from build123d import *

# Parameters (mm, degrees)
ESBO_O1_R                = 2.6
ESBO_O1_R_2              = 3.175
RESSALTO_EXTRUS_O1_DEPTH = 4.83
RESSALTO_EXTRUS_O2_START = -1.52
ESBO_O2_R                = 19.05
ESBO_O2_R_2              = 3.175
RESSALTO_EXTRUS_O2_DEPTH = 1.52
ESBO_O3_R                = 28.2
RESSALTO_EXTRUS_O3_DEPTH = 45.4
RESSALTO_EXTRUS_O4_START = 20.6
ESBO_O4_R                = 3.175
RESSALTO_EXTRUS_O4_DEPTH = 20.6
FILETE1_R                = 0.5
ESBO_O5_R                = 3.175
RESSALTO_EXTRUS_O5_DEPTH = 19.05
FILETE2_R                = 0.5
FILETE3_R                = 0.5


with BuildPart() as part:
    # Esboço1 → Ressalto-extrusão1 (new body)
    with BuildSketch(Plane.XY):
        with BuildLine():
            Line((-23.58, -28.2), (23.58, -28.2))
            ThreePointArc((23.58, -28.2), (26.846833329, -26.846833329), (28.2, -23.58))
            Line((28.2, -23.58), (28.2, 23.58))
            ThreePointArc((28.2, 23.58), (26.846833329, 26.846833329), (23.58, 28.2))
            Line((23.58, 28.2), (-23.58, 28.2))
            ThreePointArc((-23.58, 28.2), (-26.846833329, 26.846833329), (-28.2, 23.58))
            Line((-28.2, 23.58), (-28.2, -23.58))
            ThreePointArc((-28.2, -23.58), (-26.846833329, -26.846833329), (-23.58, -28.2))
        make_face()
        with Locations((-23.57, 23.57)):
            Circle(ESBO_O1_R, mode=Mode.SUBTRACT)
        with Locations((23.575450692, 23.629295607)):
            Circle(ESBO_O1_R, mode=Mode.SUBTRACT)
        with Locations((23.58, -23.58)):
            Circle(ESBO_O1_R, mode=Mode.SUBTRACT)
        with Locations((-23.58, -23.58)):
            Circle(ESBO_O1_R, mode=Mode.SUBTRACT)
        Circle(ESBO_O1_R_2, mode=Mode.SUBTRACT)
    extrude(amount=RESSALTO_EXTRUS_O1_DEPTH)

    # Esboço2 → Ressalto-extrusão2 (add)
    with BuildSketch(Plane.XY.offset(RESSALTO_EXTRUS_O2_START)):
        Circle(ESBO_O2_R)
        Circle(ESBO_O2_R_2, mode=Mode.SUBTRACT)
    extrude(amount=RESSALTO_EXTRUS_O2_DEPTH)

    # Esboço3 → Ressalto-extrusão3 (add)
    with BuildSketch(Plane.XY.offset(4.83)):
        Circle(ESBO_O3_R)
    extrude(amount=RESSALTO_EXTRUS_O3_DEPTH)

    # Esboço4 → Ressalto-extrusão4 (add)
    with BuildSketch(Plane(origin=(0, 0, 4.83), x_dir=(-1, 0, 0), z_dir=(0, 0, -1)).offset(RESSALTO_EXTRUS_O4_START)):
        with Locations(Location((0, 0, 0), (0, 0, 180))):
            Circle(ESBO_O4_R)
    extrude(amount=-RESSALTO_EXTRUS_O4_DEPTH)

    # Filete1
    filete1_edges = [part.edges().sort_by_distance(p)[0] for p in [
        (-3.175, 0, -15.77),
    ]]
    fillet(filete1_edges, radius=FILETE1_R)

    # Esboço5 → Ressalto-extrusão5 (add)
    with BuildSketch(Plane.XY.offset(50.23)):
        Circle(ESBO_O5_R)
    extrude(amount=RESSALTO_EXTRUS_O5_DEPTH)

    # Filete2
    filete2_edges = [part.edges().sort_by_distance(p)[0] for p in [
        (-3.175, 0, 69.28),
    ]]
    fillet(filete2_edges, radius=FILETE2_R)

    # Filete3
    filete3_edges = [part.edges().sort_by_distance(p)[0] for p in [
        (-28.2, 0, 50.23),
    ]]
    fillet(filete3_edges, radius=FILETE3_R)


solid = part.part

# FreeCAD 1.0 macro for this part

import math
import FreeCAD as App
import Part
import Sketcher


def edges_at(feature, points):
    """Names of the edges that pass closest to the given points."""
    edges = feature.Shape.Edges
    near = lambda p: min(range(len(edges)), key=lambda i: edges[i].distToShape(Part.Vertex(*p))[0])
    return sorted({f"Edge{near(p) + 1}" for p in points})

doc = App.newDocument("Part")
body = doc.addObject("PartDesign::Body", "Body")

# Sketch on XY plane
sketch1 = doc.addObject("Sketcher::SketchObject", "Sketch")
body.addObject(sketch1)
sketch1.AttachmentSupport = (doc.XY_Plane, [""])
sketch1.MapMode = "FlatFace"
sketch1.addGeometry([
    Part.LineSegment(App.Vector(-23.6, -28.2, 0), App.Vector(23.6, -28.2, 0)),  # 0
    Part.ArcOfCircle(Part.Circle(App.Vector(23.6, -23.6, 0), App.Vector(0, 0, 1), 4.6), math.radians(-90), math.radians(0)),  # 1
    Part.LineSegment(App.Vector(28.2, -23.6, 0), App.Vector(28.2, 23.6, 0)),  # 2
    Part.ArcOfCircle(Part.Circle(App.Vector(23.6, 23.6, 0), App.Vector(0, 0, 1), 4.6), math.radians(0), math.radians(90)),  # 3
    Part.LineSegment(App.Vector(23.6, 28.2, 0), App.Vector(-23.6, 28.2, 0)),  # 4
    Part.ArcOfCircle(Part.Circle(App.Vector(-23.6, 23.6, 0), App.Vector(0, 0, 1), 4.6), math.radians(90), math.radians(180)),  # 5
    Part.LineSegment(App.Vector(-28.2, 23.6, 0), App.Vector(-28.2, -23.6, 0)),  # 6
    Part.ArcOfCircle(Part.Circle(App.Vector(-23.6, -23.6, 0), App.Vector(0, 0, 1), 4.6), math.radians(180), math.radians(270)),  # 7
    Part.Circle(App.Vector(-23.6, -23.6, 0), App.Vector(0, 0, 1), 2.6),  # 8
    Part.Circle(App.Vector(0, 0, 0), App.Vector(0, 0, 1), 3.2),  # 9
    Part.Circle(App.Vector(23.6, -23.6, 0), App.Vector(0, 0, 1), 2.6),  # 10
    Part.Circle(App.Vector(-23.6, 23.6, 0), App.Vector(0, 0, 1), 2.6),  # 11
    Part.Circle(App.Vector(23.6, 23.6, 0), App.Vector(0, 0, 1), 2.6),  # 12
], False)
sketch1.addConstraint([
    Sketcher.Constraint("Tangent", 0, 2, 1, 1),
    Sketcher.Constraint("Tangent", 1, 2, 2, 1),
    Sketcher.Constraint("Tangent", 2, 2, 3, 1),
    Sketcher.Constraint("Tangent", 3, 2, 4, 1),
    Sketcher.Constraint("Tangent", 4, 2, 5, 1),
    Sketcher.Constraint("Tangent", 5, 2, 6, 1),
    Sketcher.Constraint("Tangent", 6, 2, 7, 1),
    Sketcher.Constraint("Tangent", 7, 2, 0, 1),
    Sketcher.Constraint("Horizontal", 0),
    Sketcher.Constraint("Vertical", 2),
    Sketcher.Constraint("Horizontal", 4),
    Sketcher.Constraint("Vertical", 6),
    Sketcher.Constraint("Coincident", 9, 3, -1, 1),
    Sketcher.Constraint("Coincident", 8, 3, 7, 3),
    Sketcher.Constraint("Coincident", 10, 3, 1, 3),
    Sketcher.Constraint("Equal", 1, 3),
    Sketcher.Constraint("Equal", 3, 5),
    Sketcher.Constraint("Equal", 5, 7),
    Sketcher.Constraint("Equal", 8, 10),
    Sketcher.Constraint("Equal", 10, 11),
    Sketcher.Constraint("Equal", 11, 12),
    Sketcher.Constraint("Symmetric", 1, 3, 5, 3, -1, 1),
    Sketcher.Constraint("Equal", 4, 2),
    Sketcher.Constraint("Diameter", 8, 5.2),
    Sketcher.Constraint("Diameter", 9, 6.35),
    Sketcher.Constraint("Radius", 1, 4.62),
    Sketcher.Constraint("DistanceX", 0, 1, 0, 2, 47.16),
    Sketcher.Constraint("DistanceX", 11, 3, -1, 1, 23.57),
    Sketcher.Constraint("DistanceY", -1, 1, 11, 3, 23.57),
    Sketcher.Constraint("DistanceX", -1, 1, 12, 3, 23.575451),
    Sketcher.Constraint("DistanceY", -1, 1, 12, 3, 23.629296),
])
pad1 = doc.addObject("PartDesign::Pad", "Pad")
body.addObject(pad1)
pad1.Profile = sketch1
pad1.Length = 4.83

# Sketch on XY plane
sketch2 = doc.addObject("Sketcher::SketchObject", "Sketch001")
body.addObject(sketch2)
sketch2.AttachmentSupport = (doc.XY_Plane, [""])
sketch2.MapMode = "FlatFace"
sketch2.AttachmentOffset = App.Placement(App.Vector(0, 0, -1.52), App.Rotation())
sketch2.addGeometry([
    Part.Circle(App.Vector(0, 0, 0), App.Vector(0, 0, 1), 19.1),
    Part.Circle(App.Vector(0, 0, 0), App.Vector(0, 0, 1), 3.2),
], False)
sketch2.addConstraint([
    Sketcher.Constraint("Coincident", 0, 3, -1, 1),
    Sketcher.Constraint("Coincident", 1, 3, -1, 1),
    Sketcher.Constraint("Diameter", 0, 38.1),
    Sketcher.Constraint("Diameter", 1, 6.35),
])
pad2 = doc.addObject("PartDesign::Pad", "Pad001")
body.addObject(pad2)
pad2.Profile = sketch2
pad2.Length = 1.52

# Sketch on XY plane
sketch3 = doc.addObject("Sketcher::SketchObject", "Sketch002")
body.addObject(sketch3)
sketch3.AttachmentSupport = (doc.XY_Plane, [""])
sketch3.MapMode = "FlatFace"
sketch3.AttachmentOffset = App.Placement(App.Vector(0, 0, 4.83), App.Rotation())
sketch3.addGeometry(Part.Circle(App.Vector(0, 0, 0), App.Vector(0, 0, 1), 28), False)
sketch3.addConstraint([
    Sketcher.Constraint("Coincident", 0, 3, -1, 1),
    Sketcher.Constraint("Diameter", 0, 56.4),
])
pad3 = doc.addObject("PartDesign::Pad", "Pad002")
body.addObject(pad3)
pad3.Profile = sketch3
pad3.Length = 45.4

# Sketch on XY plane
sketch4 = doc.addObject("Sketcher::SketchObject", "Sketch003")
body.addObject(sketch4)
sketch4.AttachmentSupport = (doc.XY_Plane, [""])
sketch4.MapMode = "FlatFace"
sketch4.AttachmentOffset = App.Placement(App.Vector(0, 0, -15.77), App.Rotation())
sketch4.addGeometry(Part.Circle(App.Vector(0, 0, 0), App.Vector(0, 0, 1), 3.2), False)
sketch4.addConstraint([
    Sketcher.Constraint("Coincident", 0, 3, -1, 1),
    Sketcher.Constraint("Diameter", 0, 6.35),
])
pad4 = doc.addObject("PartDesign::Pad", "Pad003")
body.addObject(pad4)
pad4.Profile = sketch4
pad4.Length = 20.6
doc.recompute()

fillet = doc.addObject("PartDesign::Fillet", "Fillet")
body.addObject(fillet)
fillet.Base = (pad4, edges_at(pad4, [(-3.175, 0, -15.77)]))
fillet.Radius = 0.5

# Sketch on XY plane
sketch5 = doc.addObject("Sketcher::SketchObject", "Sketch004")
body.addObject(sketch5)
sketch5.AttachmentSupport = (doc.XY_Plane, [""])
sketch5.MapMode = "FlatFace"
sketch5.AttachmentOffset = App.Placement(App.Vector(0, 0, 50.23), App.Rotation())
sketch5.addGeometry(Part.Circle(App.Vector(0, 0, 0), App.Vector(0, 0, 1), 3.2), False)
sketch5.addConstraint([
    Sketcher.Constraint("Coincident", 0, 3, -1, 1),
    Sketcher.Constraint("Diameter", 0, 6.35),
])
pad5 = doc.addObject("PartDesign::Pad", "Pad004")
body.addObject(pad5)
pad5.Profile = sketch5
pad5.Length = 19.05
doc.recompute()

fillet2 = doc.addObject("PartDesign::Fillet", "Fillet001")
body.addObject(fillet2)
fillet2.Base = (pad5, edges_at(pad5, [(-3.175, 0, 69.28)]))
fillet2.Radius = 0.5
doc.recompute()

fillet3 = doc.addObject("PartDesign::Fillet", "Fillet002")
body.addObject(fillet3)
fillet3.Base = (fillet2, edges_at(fillet2, [(-28.2, 0, 50.23)]))
fillet3.Radius = 0.5

doc.recompute()
